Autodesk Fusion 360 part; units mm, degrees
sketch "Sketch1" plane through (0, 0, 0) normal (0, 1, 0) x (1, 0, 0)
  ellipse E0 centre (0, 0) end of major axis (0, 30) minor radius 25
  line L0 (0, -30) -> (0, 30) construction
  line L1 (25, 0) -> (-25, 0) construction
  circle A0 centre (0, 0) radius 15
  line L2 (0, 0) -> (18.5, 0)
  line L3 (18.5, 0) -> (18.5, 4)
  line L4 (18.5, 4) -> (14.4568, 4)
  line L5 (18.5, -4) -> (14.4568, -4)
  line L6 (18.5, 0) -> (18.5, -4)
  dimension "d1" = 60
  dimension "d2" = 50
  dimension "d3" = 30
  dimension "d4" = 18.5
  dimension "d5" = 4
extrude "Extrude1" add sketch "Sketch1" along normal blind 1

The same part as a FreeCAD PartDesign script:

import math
import FreeCAD as App
import Part
import Sketcher

V = App.Vector

doc = App.newDocument("Part")
body = doc.addObject("PartDesign::Body", "Body")

sketch1 = doc.addObject("Sketcher::SketchObject", "Sketch")
body.addObject(sketch1)
sketch1.AttachmentSupport = (doc.XZ_Plane, [""])
sketch1.MapMode = "FlatFace"
sketch1.addGeometry(Part.Ellipse(V(0, -30, 0), V(25, 0, 0), V(0, 0, 0)), False)
sketch1.addGeometry(Part.ArcOfCircle(Part.Circle(V(0, 0, 0), V(0, 0, 1), 15), math.radians(15.466043), math.radians(344.533957)), False)
sketch1.addGeometry(Part.LineSegment(V(14.4568, -4, 0), V(18.5, -4, 0)), False)
sketch1.addGeometry(Part.LineSegment(V(18.5, -4, 0), V(18.5, 4, 0)), False)
sketch1.addGeometry(Part.LineSegment(V(18.5, 4, 0), V(14.4568, 4, 0)), False)
sketch1.addConstraint(Sketcher.Constraint("Block", 0))
sketch1.addConstraint(Sketcher.Constraint("Coincident", 1, 2, 2, 1))
sketch1.addConstraint(Sketcher.Constraint("Coincident", 2, 2, 3, 1))
sketch1.addConstraint(Sketcher.Constraint("Coincident", 3, 2, 4, 1))
sketch1.addConstraint(Sketcher.Constraint("Coincident", 4, 2, 1, 1))
sketch1.addConstraint(Sketcher.Constraint("Horizontal", 2))
sketch1.addConstraint(Sketcher.Constraint("Vertical", 3))
sketch1.addConstraint(Sketcher.Constraint("Horizontal", 4))
sketch1.addConstraint(Sketcher.Constraint("Coincident", 1, 3, -1, 1))
sketch1.addConstraint(Sketcher.Constraint("Vertical", 1, 2, 4, 2))
sketch1.addConstraint(Sketcher.Constraint("Radius", 1, 15.0))
sketch1.addConstraint(Sketcher.Constraint("DistanceY", 1, 2, -1, 1, 4.0))
sketch1.addConstraint(Sketcher.Constraint("DistanceX", -1, 1, 2, 2, 18.5))
pad1 = doc.addObject("PartDesign::Pad", "Pad")
body.addObject(pad1)
pad1.Profile = sketch1
pad1.Length = 1
pad1.Reversed = True

doc.recompute()
